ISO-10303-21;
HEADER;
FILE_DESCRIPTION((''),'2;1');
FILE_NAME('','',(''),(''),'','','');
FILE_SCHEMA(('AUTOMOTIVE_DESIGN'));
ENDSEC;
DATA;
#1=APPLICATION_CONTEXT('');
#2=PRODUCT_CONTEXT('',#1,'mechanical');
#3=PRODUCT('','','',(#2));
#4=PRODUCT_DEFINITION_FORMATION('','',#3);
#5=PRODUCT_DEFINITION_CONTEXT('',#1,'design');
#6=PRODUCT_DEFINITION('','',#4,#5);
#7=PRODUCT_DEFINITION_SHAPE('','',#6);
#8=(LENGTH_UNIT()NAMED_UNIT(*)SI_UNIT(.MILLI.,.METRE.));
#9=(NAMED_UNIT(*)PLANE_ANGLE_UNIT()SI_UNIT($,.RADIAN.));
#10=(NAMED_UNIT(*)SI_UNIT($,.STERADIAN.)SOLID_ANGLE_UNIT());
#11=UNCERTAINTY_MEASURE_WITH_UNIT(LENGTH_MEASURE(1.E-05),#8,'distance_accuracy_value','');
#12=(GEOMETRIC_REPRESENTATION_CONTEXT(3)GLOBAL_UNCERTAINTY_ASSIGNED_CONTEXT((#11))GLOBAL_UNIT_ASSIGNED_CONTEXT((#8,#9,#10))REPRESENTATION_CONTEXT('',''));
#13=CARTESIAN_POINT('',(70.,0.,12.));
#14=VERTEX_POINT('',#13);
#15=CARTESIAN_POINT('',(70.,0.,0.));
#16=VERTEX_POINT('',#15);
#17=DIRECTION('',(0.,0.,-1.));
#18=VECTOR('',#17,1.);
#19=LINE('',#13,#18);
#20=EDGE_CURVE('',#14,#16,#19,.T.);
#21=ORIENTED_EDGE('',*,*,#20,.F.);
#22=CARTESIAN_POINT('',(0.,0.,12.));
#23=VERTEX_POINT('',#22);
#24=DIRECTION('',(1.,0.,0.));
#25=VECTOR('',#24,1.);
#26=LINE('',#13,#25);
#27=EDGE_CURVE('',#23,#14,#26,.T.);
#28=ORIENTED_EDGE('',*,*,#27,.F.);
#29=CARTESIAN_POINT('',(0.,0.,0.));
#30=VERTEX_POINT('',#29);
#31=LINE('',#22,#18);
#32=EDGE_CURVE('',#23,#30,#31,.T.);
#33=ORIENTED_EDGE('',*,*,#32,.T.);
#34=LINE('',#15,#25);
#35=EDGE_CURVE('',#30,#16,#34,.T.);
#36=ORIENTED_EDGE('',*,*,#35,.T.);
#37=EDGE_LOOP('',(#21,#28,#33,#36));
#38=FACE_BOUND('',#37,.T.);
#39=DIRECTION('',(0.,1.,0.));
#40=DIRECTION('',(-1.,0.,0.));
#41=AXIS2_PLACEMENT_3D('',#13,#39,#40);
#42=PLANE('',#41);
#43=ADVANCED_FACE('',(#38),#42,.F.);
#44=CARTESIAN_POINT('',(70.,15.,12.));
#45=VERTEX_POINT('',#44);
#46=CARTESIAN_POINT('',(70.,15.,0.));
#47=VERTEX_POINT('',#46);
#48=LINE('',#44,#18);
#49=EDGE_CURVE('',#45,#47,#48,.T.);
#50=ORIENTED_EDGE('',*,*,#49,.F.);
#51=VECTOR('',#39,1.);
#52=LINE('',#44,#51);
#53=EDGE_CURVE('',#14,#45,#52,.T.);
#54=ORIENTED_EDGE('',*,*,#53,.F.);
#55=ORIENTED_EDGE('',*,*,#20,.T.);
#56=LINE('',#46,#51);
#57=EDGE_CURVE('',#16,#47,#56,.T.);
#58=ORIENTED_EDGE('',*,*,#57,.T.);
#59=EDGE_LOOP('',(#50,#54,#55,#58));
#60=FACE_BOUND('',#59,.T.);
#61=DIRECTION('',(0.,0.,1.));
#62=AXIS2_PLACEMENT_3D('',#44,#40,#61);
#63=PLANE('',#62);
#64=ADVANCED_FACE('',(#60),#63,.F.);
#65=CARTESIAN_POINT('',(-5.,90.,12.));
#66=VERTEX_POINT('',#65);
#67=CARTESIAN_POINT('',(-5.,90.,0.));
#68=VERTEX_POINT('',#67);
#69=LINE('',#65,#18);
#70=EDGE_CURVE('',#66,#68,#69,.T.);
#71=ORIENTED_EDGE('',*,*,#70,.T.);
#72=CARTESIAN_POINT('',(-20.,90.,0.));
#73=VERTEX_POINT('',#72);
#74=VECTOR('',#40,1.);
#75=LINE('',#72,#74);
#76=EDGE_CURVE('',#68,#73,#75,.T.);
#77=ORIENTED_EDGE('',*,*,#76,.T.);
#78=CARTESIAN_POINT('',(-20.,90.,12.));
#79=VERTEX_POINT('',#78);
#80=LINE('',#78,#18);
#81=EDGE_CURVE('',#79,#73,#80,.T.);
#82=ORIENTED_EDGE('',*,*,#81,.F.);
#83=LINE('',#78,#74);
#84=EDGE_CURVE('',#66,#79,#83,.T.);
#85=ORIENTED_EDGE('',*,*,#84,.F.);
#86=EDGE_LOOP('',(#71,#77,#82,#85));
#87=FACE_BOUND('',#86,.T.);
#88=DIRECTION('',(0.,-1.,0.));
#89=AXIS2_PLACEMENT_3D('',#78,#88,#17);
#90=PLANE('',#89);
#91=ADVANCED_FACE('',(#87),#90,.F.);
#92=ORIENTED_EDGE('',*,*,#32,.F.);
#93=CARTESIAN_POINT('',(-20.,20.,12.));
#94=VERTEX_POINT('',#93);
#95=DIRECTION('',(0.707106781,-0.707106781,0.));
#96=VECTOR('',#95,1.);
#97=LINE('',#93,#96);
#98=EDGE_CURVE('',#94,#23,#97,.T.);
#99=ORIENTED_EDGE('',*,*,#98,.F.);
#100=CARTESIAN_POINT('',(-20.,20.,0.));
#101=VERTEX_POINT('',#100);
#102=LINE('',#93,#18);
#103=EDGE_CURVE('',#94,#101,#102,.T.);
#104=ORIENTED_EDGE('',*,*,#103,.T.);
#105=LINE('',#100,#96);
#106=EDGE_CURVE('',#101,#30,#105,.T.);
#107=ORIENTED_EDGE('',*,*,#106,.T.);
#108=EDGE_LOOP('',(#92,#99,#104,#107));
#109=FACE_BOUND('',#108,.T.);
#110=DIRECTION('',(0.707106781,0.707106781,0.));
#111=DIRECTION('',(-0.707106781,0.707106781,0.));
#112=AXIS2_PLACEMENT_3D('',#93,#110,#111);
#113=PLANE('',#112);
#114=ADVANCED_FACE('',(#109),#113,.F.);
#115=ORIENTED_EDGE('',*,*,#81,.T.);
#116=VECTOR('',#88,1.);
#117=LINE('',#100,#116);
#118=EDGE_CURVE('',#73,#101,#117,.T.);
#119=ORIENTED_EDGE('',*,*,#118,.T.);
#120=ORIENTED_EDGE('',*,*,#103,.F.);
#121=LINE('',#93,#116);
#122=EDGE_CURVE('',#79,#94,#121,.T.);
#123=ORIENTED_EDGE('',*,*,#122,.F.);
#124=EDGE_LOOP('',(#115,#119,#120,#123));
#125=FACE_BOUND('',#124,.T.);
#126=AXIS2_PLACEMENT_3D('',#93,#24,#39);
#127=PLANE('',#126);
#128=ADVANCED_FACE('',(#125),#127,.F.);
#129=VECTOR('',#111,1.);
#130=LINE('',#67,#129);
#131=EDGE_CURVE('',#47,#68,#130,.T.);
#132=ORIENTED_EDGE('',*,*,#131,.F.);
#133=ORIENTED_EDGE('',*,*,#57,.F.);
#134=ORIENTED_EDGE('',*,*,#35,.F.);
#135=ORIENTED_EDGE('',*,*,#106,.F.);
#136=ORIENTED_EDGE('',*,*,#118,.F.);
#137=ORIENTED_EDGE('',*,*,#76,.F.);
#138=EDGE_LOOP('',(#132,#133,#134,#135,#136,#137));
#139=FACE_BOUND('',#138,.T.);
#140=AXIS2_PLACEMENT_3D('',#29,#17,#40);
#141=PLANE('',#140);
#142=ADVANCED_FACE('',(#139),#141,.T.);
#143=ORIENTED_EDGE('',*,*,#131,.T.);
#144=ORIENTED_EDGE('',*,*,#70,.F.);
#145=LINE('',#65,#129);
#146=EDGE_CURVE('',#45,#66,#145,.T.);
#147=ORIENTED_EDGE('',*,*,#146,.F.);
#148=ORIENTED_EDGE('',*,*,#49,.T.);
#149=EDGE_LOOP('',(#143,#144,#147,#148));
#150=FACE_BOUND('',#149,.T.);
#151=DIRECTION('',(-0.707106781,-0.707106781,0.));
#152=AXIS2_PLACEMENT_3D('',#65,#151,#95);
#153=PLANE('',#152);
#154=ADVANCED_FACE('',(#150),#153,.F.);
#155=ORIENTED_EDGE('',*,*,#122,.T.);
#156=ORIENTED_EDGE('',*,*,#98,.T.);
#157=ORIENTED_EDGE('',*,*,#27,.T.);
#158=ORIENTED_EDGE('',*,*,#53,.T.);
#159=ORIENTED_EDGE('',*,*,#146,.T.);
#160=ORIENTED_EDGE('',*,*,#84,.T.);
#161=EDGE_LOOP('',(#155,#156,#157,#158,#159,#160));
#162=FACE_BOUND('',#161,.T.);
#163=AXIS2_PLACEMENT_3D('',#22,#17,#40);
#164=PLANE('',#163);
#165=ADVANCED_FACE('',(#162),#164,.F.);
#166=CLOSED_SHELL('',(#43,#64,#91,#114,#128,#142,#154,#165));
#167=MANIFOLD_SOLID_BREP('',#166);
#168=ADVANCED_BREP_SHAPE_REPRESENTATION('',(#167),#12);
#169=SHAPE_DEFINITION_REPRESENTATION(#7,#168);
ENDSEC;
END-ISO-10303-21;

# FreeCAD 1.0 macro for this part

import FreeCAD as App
import Part
import Sketcher

doc = App.newDocument("Part")
body = doc.addObject("PartDesign::Body", "Body")

sketch1 = doc.addObject("Sketcher::SketchObject", "Sketch")
body.addObject(sketch1)
sketch1.AttachmentSupport = (doc.XY_Plane, [""])
sketch1.MapMode = "FlatFace"
sketch1.addGeometry([
    Part.LineSegment(App.Vector(-20, 90, 0), App.Vector(-20, 20, 0)),
    Part.LineSegment(App.Vector(-20, 20, 0), App.Vector(0, 0, 0)),
    Part.LineSegment(App.Vector(0, 0, 0), App.Vector(70, 0, 0)),
    Part.LineSegment(App.Vector(70, 0, 0), App.Vector(70, 15, 0)),
    Part.LineSegment(App.Vector(70, 15, 0), App.Vector(-5, 90, 0)),
    Part.LineSegment(App.Vector(-5, 90, 0), App.Vector(-20, 90, 0)),
], False)
sketch1.addConstraint([
    Sketcher.Constraint("Coincident", 0, 2, 1, 1),
    Sketcher.Constraint("Coincident", 1, 2, 2, 1),
    Sketcher.Constraint("Coincident", 2, 2, 3, 1),
    Sketcher.Constraint("Coincident", 3, 2, 4, 1),
    Sketcher.Constraint("Coincident", 4, 2, 5, 1),
    Sketcher.Constraint("Coincident", 5, 2, 0, 1),
    Sketcher.Constraint("Vertical", 0),
    Sketcher.Constraint("Horizontal", 2),
    Sketcher.Constraint("Vertical", 3),
    Sketcher.Constraint("Horizontal", 5),
    Sketcher.Constraint("Coincident", 1, 2, -1, 1),
    Sketcher.Constraint("Parallel", 1, 4),
    Sketcher.Constraint("Equal", 2, 0),
    Sketcher.Constraint("Equal", 5, 3),
    Sketcher.Constraint("DistanceX", 2, 1, 2, 2, 70.0),
    Sketcher.Constraint("DistanceX", 5, 2, 5, 1, 15.0),
    Sketcher.Constraint("DistanceX", 0, 2, -1, 1, 20.0),
])
pad1 = doc.addObject("PartDesign::Pad", "Pad")
body.addObject(pad1)
pad1.Profile = sketch1
pad1.Length = 12

doc.recompute()
